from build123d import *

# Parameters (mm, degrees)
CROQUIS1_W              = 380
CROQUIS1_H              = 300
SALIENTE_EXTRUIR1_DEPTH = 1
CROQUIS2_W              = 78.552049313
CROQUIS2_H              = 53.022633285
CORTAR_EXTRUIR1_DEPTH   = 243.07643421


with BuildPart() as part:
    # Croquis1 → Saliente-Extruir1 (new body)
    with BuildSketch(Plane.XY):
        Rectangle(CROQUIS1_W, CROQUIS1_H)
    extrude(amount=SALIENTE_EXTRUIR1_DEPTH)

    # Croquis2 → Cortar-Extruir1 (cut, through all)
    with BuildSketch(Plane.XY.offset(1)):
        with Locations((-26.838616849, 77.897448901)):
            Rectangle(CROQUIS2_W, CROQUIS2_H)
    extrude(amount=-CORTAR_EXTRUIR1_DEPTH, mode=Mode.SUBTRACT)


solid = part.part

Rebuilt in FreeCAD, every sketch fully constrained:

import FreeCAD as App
import Part
import Sketcher


def add_polygon(sketch, points):
    """Adds a closed chain of lines whose ends are joined by coincident constraints."""
    first, n = sketch.GeometryCount, len(points)
    for a, b in zip(points, points[1:] + points[:1]):
        sketch.addGeometry(Part.LineSegment(App.Vector(*a, 0), App.Vector(*b, 0)), False)
    for i in range(n):
        sketch.addConstraint(Sketcher.Constraint("Coincident", first + i, 2, first + (i + 1) % n, 1))

doc = App.newDocument("Part")
body = doc.addObject("PartDesign::Body", "Body")

sketch1 = body.newObject("Sketcher::SketchObject", "Sketch")
sketch1.AttachmentSupport = (doc.getObject("XY_Plane"), [""])
sketch1.MapMode = "FlatFace"
add_polygon(sketch1, [(-190, 150), (-190, -150), (190, -150), (190, 150)])
sketch1.addConstraint([
    Sketcher.Constraint("Vertical", 0),
    Sketcher.Constraint("Horizontal", 1),
    Sketcher.Constraint("Vertical", 2),
    Sketcher.Constraint("Horizontal", 3),
    Sketcher.Constraint("Symmetric", 0, 2, 2, 2, -1, 1),
    Sketcher.Constraint("DistanceX", 1, 1, 1, 2, 380.0),
    Sketcher.Constraint("DistanceY", 0, 2, 0, 1, 300.0),
])
pad1 = body.newObject("PartDesign::Pad", "Pad")
pad1.Profile = sketch1
pad1.Length = 1

sketch2 = body.newObject("Sketcher::SketchObject", "Sketch001")
sketch2.AttachmentSupport = (doc.getObject("XY_Plane"), [""])
sketch2.MapMode = "FlatFace"
sketch2.AttachmentOffset = App.Placement(App.Vector(0, 0, 1), App.Rotation())
add_polygon(sketch2, [(-66, 104), (-66, 51), (12, 51), (12, 104)])
sketch2.addConstraint([
    Sketcher.Constraint("Vertical", 0),
    Sketcher.Constraint("Horizontal", 1),
    Sketcher.Constraint("Vertical", 2),
    Sketcher.Constraint("Horizontal", 3),
    Sketcher.Constraint("DistanceX", 1, 1, 1, 2, 78.552049),
    Sketcher.Constraint("DistanceY", 0, 2, 0, 1, 53.022633),
    Sketcher.Constraint("DistanceX", 0, 2, -1, 1, 66.114642),
    Sketcher.Constraint("DistanceY", -1, 1, 0, 2, 51.386132),
])
pocket1 = body.newObject("PartDesign::Pocket", "Pocket")
pocket1.Profile = sketch2
pocket1.Type = "ThroughAll"

doc.recompute()
